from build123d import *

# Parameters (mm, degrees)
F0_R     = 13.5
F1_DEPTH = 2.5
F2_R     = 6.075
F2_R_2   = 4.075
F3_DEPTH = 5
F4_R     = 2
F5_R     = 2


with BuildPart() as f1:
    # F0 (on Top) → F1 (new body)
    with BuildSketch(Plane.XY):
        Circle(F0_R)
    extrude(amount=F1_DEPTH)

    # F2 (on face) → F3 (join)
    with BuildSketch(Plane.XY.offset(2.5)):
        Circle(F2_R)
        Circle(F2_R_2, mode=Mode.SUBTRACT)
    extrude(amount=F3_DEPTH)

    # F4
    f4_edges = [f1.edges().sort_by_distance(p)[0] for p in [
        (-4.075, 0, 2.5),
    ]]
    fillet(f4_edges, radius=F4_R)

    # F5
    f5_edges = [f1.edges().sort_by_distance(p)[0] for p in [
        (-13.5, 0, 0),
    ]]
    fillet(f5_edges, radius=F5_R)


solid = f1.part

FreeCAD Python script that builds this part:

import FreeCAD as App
import Part
import Sketcher

V = App.Vector


def edges_at(feature, points):
    """Names of the edges that pass closest to the given points."""
    edges = feature.Shape.Edges
    near = lambda p: min(range(len(edges)), key=lambda i: edges[i].distToShape(Part.Vertex(*p))[0])
    return sorted({f"Edge{near(p) + 1}" for p in points})

doc = App.newDocument("Part")
body = doc.addObject("PartDesign::Body", "Body")

sketch1 = doc.addObject("Sketcher::SketchObject", "Sketch")
body.addObject(sketch1)
sketch1.AttachmentSupport = (doc.XY_Plane, [""])
sketch1.MapMode = "FlatFace"
sketch1.addGeometry(Part.Circle(V(0, 0, 0), V(0, 0, 1), 14), False)
sketch1.addConstraint(Sketcher.Constraint("Coincident", 0, 3, -1, 1))
sketch1.addConstraint(Sketcher.Constraint("Diameter", 0, 27.0))
pad1 = doc.addObject("PartDesign::Pad", "Pad")
body.addObject(pad1)
pad1.Profile = sketch1
pad1.Length = 2.5

sketch2 = doc.addObject("Sketcher::SketchObject", "Sketch001")
body.addObject(sketch2)
sketch2.AttachmentSupport = (doc.XY_Plane, [""])
sketch2.MapMode = "FlatFace"
sketch2.AttachmentOffset = App.Placement(V(0, 0, 2.5), App.Rotation())
sketch2.addGeometry(Part.Circle(V(0, 0, 0), V(0, 0, 1), 6.1), False)
sketch2.addGeometry(Part.Circle(V(0, 0, 0), V(0, 0, 1), 4.1), False)
sketch2.addConstraint(Sketcher.Constraint("Coincident", 0, 3, -1, 1))
sketch2.addConstraint(Sketcher.Constraint("Coincident", 1, 3, -1, 1))
sketch2.addConstraint(Sketcher.Constraint("Diameter", 0, 12.15))
sketch2.addConstraint(Sketcher.Constraint("Diameter", 1, 8.15))
pad2 = doc.addObject("PartDesign::Pad", "Pad001")
body.addObject(pad2)
pad2.Profile = sketch2
pad2.Length = 5
doc.recompute()

fillet = doc.addObject("PartDesign::Fillet", "Fillet")
body.addObject(fillet)
fillet.Base = (pad2, edges_at(pad2, [(-4.075, 0, 2.5)]))
fillet.Radius = 2
doc.recompute()

fillet2 = doc.addObject("PartDesign::Fillet", "Fillet001")
body.addObject(fillet2)
fillet2.Base = (fillet, edges_at(fillet, [(-13.5, 0, 0)]))
fillet2.Radius = 2

doc.recompute()
